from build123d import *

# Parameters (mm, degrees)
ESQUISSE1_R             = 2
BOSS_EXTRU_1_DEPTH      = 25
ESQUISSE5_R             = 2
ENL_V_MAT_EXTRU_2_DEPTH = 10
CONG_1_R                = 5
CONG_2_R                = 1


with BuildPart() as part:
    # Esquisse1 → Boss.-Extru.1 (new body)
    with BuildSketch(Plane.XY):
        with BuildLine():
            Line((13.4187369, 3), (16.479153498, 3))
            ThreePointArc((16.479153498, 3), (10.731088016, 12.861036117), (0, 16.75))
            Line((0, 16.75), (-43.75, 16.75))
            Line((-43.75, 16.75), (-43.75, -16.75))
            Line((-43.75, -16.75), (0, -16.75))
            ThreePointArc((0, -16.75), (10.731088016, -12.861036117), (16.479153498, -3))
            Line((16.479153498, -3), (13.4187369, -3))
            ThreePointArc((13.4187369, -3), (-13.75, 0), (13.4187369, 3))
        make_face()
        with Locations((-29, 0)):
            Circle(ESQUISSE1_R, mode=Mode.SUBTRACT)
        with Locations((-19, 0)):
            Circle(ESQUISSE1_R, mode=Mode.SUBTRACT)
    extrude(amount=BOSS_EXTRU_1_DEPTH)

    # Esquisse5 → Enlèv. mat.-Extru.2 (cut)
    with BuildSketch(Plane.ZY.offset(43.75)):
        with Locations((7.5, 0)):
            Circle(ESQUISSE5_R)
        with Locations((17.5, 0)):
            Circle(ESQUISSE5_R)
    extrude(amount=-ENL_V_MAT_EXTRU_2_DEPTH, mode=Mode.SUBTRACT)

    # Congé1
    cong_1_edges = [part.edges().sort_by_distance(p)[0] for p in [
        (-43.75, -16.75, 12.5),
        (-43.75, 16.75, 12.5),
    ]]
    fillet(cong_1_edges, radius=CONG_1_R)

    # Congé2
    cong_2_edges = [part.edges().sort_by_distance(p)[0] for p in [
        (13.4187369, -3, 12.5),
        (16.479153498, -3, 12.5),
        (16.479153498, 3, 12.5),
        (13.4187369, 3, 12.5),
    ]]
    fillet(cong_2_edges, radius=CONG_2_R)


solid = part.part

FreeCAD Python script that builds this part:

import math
import FreeCAD as App
import Part
import Sketcher
from FreeCAD import Vector


def edges_at(feature, points):
    """Names of the edges that pass closest to the given points."""
    edges = feature.Shape.Edges
    near = lambda p: min(range(len(edges)), key=lambda i: edges[i].distToShape(Part.Vertex(*p))[0])
    return sorted({f"Edge{near(p) + 1}" for p in points})

doc = App.newDocument("Part")
body = doc.addObject("PartDesign::Body", "Body")

sketch1 = doc.addObject("Sketcher::SketchObject", "Sketch")
body.addObject(sketch1)
sketch1.AttachmentSupport = (doc.XY_Plane, [""])
sketch1.MapMode = "FlatFace"
sketch1.addGeometry([
    Part.LineSegment(Vector(13.4, 3, 0), Vector(16.5, 3, 0)),
    Part.ArcOfCircle(Part.Circle(Vector(0, 0, 0), Vector(0, 0, 1), 16.8), math.radians(10), math.radians(90)),
    Part.LineSegment(Vector(0, 16.8, 0), Vector(-43.8, 16.8, 0)),
    Part.LineSegment(Vector(-43.8, 16.8, 0), Vector(-43.8, -16.8, 0)),
    Part.LineSegment(Vector(-43.8, -16.8, 0), Vector(0, -16.8, 0)),
    Part.ArcOfCircle(Part.Circle(Vector(0, 0, 0), Vector(0, 0, 1), 16.8), math.radians(-90), math.radians(-10)),
    Part.LineSegment(Vector(16.5, -3, 0), Vector(13.4, -3, 0)),
    Part.ArcOfCircle(Part.Circle(Vector(0, 0, 0), Vector(0, 0, 1), 13.8), math.radians(13), math.radians(347)),
    Part.Circle(Vector(-29, 0, 0), Vector(0, 0, 1), 2),
    Part.Circle(Vector(-19, 0, 0), Vector(0, 0, 1), 2),
], False)
sketch1.addConstraint([
    Sketcher.Constraint("Coincident", 0, 2, 1, 1),
    Sketcher.Constraint("Tangent", 1, 2, 2, 1),
    Sketcher.Constraint("Coincident", 2, 2, 3, 1),
    Sketcher.Constraint("Coincident", 3, 2, 4, 1),
    Sketcher.Constraint("Tangent", 4, 2, 5, 1),
    Sketcher.Constraint("Coincident", 5, 2, 6, 1),
    Sketcher.Constraint("Coincident", 6, 2, 7, 2),
    Sketcher.Constraint("Coincident", 7, 1, 0, 1),
    Sketcher.Constraint("Horizontal", 0),
    Sketcher.Constraint("Horizontal", 2),
    Sketcher.Constraint("Vertical", 3),
    Sketcher.Constraint("Horizontal", 4),
    Sketcher.Constraint("Horizontal", 6),
    Sketcher.Constraint("Coincident", 1, 3, -1, 1),
    Sketcher.Constraint("Coincident", 5, 3, -1, 1),
    Sketcher.Constraint("Coincident", 7, 3, -1, 1),
    Sketcher.Constraint("Equal", 1, 5),
    Sketcher.Constraint("Equal", 8, 9),
    Sketcher.Constraint("PointOnObject", 8, 3, -1),
    Sketcher.Constraint("PointOnObject", 9, 3, -1),
    Sketcher.Constraint("Vertical", 0, 2, 5, 2),
    Sketcher.Constraint("Diameter", 8, 4.0),
    Sketcher.Constraint("Radius", 1, 16.75),
    Sketcher.Constraint("Radius", 7, 13.75),
    Sketcher.Constraint("DistanceX", 8, 3, -1, 1, 29.0),
    Sketcher.Constraint("DistanceX", 9, 3, -1, 1, 19.0),
    Sketcher.Constraint("DistanceY", -1, 1, 0, 2, 3.0),
    Sketcher.Constraint("DistanceX", 2, 2, 2, 1, 43.75),
])
pad1 = doc.addObject("PartDesign::Pad", "Pad")
body.addObject(pad1)
pad1.Profile = sketch1
pad1.Length = 25

sketch2 = doc.addObject("Sketcher::SketchObject", "Sketch001")
body.addObject(sketch2)
sketch2.AttachmentSupport = (doc.YZ_Plane, [""])
sketch2.MapMode = "FlatFace"
sketch2.AttachmentOffset = App.Placement(Vector(0, 0, -43.75), App.Rotation())
sketch2.addGeometry([
    Part.Circle(Vector(0, 7.5, 0), Vector(0, 0, 1), 2),
    Part.Circle(Vector(0, 17.5, 0), Vector(0, 0, 1), 2),
], False)
sketch2.addConstraint([
    Sketcher.Constraint("Equal", 0, 1),
    Sketcher.Constraint("PointOnObject", 0, 3, -2),
    Sketcher.Constraint("PointOnObject", 1, 3, -2),
    Sketcher.Constraint("Diameter", 0, 4.0),
    Sketcher.Constraint("DistanceY", 0, 3, 1, 3, 10.0),
    Sketcher.Constraint("DistanceY", -1, 1, 0, 3, 7.5),
])
pocket1 = doc.addObject("PartDesign::Pocket", "Pocket")
body.addObject(pocket1)
pocket1.Profile = sketch2
pocket1.Length = 10
pocket1.Reversed = True
doc.recompute()

fillet = doc.addObject("PartDesign::Fillet", "Fillet")
body.addObject(fillet)
fillet.Base = (pocket1, edges_at(pocket1, [(-43.75, -16.75, 12.5), (-43.75, 16.75, 12.5)]))
fillet.Radius = 5
doc.recompute()

fillet2 = doc.addObject("PartDesign::Fillet", "Fillet001")
body.addObject(fillet2)
fillet2.Base = (fillet, edges_at(fillet, [
    (13.419, -3, 12.5),
    (16.479, -3, 12.5),
    (16.479, 3, 12.5),
    (13.419, 3, 12.5),
]))
fillet2.Radius = 1

doc.recompute()
